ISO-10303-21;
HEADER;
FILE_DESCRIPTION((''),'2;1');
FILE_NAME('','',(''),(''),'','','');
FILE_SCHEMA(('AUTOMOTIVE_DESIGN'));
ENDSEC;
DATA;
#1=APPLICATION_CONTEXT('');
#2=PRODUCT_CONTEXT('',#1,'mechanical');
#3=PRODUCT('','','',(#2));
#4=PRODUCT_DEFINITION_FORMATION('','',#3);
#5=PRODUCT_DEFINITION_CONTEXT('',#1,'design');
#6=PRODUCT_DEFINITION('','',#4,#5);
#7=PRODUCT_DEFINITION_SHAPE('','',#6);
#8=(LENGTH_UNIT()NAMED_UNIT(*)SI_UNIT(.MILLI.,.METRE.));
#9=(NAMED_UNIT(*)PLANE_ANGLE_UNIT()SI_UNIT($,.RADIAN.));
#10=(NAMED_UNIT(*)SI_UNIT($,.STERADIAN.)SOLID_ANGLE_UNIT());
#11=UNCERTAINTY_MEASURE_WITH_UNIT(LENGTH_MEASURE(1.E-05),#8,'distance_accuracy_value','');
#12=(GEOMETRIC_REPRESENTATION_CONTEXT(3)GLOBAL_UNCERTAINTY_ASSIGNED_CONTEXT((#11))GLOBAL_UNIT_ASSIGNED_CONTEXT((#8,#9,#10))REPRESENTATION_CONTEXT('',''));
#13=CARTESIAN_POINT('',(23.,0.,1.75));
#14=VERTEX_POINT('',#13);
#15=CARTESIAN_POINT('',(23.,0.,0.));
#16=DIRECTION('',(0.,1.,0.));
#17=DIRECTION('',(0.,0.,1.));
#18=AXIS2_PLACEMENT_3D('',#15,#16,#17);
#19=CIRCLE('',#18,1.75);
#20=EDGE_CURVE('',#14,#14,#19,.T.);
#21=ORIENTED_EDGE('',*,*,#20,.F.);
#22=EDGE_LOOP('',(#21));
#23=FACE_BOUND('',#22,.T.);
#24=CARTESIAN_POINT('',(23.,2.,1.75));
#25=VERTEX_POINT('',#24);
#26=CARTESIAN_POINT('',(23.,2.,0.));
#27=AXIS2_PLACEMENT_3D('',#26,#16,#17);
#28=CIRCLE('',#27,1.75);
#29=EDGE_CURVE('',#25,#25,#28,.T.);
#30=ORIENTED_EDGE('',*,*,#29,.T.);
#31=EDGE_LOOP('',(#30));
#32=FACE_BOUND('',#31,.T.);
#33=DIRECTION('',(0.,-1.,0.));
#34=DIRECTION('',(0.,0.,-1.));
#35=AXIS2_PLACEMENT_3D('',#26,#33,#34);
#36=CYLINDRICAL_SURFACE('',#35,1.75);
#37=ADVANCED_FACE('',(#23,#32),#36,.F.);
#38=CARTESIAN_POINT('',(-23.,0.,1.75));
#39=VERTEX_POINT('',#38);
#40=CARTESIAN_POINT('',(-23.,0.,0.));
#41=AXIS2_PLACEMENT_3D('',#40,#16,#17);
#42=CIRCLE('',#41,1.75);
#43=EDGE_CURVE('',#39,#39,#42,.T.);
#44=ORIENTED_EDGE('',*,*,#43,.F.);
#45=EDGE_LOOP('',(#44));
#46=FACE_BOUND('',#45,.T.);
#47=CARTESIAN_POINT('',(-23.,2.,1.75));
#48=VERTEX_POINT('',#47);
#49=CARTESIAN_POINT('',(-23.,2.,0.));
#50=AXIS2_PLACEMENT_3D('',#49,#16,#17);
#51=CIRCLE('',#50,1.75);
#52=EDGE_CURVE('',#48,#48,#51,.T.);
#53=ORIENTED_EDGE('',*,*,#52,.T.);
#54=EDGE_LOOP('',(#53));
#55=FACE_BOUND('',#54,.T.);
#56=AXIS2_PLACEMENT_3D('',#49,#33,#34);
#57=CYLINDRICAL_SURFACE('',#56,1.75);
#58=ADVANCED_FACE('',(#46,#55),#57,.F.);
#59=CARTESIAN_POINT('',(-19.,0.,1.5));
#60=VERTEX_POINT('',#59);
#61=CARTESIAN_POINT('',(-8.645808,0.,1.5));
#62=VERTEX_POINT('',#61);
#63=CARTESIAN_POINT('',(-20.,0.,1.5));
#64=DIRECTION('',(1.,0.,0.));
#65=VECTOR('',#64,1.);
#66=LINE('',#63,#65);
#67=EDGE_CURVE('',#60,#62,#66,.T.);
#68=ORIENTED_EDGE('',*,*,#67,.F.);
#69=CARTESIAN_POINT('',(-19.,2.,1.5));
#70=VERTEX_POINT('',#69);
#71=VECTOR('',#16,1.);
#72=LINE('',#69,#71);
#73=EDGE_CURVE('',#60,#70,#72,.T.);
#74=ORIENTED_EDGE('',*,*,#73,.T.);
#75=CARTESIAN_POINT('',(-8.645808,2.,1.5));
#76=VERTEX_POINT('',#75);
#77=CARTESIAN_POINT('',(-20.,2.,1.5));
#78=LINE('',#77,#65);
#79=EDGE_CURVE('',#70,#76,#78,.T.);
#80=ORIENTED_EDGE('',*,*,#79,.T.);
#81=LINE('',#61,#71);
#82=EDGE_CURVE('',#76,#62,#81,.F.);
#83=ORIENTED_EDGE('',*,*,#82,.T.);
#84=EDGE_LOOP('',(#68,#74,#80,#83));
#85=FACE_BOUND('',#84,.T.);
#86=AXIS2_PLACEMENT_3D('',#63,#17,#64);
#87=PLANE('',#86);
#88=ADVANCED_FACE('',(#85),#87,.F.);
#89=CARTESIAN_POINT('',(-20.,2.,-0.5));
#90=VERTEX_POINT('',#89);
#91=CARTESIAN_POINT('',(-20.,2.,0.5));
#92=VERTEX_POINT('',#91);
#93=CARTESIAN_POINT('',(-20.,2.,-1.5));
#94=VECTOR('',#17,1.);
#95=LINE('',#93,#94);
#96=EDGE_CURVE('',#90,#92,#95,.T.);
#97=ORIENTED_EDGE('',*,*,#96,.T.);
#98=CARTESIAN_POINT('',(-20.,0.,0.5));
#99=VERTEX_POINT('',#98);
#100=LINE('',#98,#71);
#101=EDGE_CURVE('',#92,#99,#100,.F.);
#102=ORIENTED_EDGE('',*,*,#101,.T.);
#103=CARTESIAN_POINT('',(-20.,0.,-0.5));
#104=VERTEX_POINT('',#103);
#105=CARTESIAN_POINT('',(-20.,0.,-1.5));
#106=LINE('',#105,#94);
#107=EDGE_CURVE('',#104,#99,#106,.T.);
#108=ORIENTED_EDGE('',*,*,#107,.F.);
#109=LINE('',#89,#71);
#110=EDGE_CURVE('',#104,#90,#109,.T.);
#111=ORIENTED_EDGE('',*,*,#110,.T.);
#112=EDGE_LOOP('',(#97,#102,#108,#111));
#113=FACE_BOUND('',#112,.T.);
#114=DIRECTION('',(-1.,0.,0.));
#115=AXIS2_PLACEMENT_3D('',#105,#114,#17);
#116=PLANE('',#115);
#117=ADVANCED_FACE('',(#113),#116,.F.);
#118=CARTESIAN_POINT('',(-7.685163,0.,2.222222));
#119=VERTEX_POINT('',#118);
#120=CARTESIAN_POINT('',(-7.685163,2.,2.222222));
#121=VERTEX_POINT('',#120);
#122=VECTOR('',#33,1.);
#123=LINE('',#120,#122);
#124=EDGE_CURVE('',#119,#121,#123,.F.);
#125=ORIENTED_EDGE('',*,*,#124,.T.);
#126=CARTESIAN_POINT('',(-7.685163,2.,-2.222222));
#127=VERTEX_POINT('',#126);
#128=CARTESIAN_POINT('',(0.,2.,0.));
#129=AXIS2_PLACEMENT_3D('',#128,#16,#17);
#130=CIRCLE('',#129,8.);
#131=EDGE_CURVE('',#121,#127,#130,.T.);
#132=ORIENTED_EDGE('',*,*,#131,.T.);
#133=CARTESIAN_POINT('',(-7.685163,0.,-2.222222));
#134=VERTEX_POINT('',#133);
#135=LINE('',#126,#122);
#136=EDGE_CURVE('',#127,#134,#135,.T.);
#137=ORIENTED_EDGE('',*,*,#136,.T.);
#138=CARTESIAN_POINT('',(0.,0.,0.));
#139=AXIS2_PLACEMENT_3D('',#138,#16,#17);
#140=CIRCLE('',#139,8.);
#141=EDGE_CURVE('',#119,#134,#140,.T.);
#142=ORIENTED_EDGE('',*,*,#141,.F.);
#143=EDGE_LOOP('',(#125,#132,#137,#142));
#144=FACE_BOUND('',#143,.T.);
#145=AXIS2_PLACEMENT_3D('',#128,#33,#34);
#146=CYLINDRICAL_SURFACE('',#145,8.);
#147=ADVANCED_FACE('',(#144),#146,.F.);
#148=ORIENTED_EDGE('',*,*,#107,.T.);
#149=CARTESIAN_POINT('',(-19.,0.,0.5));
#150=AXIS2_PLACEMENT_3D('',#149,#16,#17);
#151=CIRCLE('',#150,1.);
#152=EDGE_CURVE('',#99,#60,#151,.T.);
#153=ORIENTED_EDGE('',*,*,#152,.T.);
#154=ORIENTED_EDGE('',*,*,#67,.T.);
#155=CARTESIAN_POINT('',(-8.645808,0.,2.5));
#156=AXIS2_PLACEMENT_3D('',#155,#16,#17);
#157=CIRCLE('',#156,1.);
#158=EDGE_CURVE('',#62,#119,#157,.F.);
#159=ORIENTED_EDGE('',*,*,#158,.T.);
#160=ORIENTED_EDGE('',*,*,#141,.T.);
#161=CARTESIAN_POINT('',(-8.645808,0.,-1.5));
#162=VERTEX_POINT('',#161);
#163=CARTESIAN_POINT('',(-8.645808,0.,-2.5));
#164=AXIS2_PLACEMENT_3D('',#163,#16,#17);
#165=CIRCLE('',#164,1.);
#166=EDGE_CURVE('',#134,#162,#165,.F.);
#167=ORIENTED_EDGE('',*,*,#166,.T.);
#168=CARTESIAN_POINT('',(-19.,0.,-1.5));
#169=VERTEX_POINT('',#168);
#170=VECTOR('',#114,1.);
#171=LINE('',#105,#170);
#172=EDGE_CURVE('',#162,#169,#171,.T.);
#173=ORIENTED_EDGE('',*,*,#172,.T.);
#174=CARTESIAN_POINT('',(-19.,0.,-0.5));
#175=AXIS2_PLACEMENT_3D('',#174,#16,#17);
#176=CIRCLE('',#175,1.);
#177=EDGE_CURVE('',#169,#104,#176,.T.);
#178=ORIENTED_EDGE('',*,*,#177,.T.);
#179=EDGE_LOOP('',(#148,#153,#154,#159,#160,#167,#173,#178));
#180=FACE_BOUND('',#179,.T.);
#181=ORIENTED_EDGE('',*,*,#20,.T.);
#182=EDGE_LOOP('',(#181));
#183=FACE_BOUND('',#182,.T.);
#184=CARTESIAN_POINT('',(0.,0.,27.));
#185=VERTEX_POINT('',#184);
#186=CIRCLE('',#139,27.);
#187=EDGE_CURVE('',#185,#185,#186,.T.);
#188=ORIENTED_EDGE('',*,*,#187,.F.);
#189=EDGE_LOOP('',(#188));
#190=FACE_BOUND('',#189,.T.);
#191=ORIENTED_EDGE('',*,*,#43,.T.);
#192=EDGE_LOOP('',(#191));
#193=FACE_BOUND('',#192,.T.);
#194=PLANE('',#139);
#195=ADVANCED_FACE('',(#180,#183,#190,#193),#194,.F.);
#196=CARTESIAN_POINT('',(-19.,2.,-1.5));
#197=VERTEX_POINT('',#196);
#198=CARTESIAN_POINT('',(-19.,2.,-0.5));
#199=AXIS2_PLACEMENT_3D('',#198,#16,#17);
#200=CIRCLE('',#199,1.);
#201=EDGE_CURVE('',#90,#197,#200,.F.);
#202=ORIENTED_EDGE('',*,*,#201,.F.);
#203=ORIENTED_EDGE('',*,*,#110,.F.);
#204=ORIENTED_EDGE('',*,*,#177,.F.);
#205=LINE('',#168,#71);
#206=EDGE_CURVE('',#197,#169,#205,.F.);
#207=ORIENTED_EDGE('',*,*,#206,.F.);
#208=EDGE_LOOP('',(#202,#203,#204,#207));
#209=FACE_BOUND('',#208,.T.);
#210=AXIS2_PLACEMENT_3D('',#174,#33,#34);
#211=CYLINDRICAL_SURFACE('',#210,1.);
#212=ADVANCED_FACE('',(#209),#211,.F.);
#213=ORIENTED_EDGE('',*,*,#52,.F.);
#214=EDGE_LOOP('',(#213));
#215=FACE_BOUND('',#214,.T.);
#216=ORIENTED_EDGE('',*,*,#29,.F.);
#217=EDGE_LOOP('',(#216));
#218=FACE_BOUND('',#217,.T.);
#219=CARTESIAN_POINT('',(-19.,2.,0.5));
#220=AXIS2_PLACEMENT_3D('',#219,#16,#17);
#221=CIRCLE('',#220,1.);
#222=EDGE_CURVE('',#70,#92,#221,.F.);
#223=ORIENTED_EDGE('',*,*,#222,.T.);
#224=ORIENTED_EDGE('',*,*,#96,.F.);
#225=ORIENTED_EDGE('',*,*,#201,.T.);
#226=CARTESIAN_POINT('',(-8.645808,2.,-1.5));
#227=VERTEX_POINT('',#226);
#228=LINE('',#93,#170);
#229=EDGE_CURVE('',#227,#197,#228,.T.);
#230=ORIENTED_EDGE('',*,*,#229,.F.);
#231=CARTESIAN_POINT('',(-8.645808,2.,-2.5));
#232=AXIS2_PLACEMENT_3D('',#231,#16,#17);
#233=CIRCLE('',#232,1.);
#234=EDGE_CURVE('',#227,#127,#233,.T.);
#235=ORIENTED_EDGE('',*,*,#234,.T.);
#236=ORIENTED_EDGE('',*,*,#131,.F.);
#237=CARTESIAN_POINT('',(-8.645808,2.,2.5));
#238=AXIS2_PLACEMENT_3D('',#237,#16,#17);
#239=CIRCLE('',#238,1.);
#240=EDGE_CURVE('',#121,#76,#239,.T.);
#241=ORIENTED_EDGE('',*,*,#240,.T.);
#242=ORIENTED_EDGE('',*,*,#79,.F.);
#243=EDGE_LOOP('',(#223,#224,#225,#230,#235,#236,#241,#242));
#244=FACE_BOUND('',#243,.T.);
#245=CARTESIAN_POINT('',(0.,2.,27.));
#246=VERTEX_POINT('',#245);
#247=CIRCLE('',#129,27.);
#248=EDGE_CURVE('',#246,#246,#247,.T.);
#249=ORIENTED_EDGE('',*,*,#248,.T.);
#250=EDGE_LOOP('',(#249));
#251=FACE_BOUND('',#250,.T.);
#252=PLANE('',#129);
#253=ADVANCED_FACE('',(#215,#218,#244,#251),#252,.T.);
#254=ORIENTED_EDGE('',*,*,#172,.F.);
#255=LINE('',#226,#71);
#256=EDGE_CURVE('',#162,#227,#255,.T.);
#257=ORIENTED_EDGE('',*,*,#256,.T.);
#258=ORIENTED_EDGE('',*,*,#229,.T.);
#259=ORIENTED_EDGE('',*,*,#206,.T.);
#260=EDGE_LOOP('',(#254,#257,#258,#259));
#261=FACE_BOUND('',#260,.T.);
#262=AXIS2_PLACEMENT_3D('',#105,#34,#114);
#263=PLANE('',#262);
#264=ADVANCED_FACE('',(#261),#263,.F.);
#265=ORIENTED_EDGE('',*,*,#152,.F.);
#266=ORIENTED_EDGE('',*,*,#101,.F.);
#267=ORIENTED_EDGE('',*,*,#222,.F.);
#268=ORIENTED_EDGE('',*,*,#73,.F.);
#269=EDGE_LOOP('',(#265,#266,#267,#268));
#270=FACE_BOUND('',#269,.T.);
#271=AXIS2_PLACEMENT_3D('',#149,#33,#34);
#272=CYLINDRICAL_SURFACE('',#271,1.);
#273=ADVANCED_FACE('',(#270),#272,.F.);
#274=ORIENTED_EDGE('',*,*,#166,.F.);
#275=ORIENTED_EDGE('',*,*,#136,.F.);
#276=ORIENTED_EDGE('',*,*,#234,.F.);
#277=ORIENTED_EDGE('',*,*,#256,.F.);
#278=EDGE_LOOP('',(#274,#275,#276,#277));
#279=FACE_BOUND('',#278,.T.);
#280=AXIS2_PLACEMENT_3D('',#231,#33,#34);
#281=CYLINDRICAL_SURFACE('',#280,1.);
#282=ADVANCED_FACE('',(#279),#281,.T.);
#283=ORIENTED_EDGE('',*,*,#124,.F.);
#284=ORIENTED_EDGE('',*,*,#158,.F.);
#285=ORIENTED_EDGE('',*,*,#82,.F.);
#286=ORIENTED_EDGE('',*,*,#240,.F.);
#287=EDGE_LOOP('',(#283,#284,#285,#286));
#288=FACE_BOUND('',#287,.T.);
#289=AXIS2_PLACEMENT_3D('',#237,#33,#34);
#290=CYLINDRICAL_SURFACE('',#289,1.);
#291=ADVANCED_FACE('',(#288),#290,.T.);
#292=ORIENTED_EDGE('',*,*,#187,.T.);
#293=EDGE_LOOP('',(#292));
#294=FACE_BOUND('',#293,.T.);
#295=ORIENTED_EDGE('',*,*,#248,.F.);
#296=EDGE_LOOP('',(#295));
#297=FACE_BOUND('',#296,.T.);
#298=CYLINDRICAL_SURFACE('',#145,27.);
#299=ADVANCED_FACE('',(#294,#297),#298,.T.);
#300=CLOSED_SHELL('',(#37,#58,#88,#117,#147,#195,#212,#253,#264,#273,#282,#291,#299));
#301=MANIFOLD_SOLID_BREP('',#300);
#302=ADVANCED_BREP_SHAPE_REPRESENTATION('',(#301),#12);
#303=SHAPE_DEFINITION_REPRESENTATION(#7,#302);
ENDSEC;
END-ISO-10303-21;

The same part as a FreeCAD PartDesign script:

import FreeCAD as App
import Part
import Sketcher
from FreeCAD import Vector
Q = App.Units.Quantity


def edges_at(feature, points):
    """Names of the edges that pass closest to the given points."""
    edges = feature.Shape.Edges
    near = lambda p: min(range(len(edges)), key=lambda i: edges[i].distToShape(Part.Vertex(*p))[0])
    return sorted({f"Edge{near(p) + 1}" for p in points})


def add_polygon(sketch, points):
    """Adds a closed chain of lines whose ends are joined by coincident constraints."""
    first, n = sketch.GeometryCount, len(points)
    for a, b in zip(points, points[1:] + points[:1]):
        sketch.addGeometry(Part.LineSegment(App.Vector(*a, 0), App.Vector(*b, 0)), False)
    for i in range(n):
        sketch.addConstraint(Sketcher.Constraint("Coincident", first + i, 2, first + (i + 1) % n, 1))

doc = App.newDocument("Part")
body = doc.addObject("PartDesign::Body", "Body")

sketch1 = doc.addObject("Sketcher::SketchObject", "Sketch")
body.addObject(sketch1)
sketch1.AttachmentSupport = (doc.XZ_Plane, [""])
sketch1.MapMode = "FlatFace"
sketch1.addGeometry(Part.Circle(Vector(0, 0, 0), Vector(0, 0, 1), 27), False)
sketch1.addGeometry(Part.Circle(Vector(-23, 0, 0), Vector(0, 0, 1), 1.8), False)
sketch1.addGeometry(Part.Circle(Vector(23, 0, 0), Vector(0, 0, 1), 1.8), False)
sketch1.addGeometry(Part.Circle(Vector(0, 0, 0), Vector(0, 0, 1), 8), False)
sketch1.addConstraint(Sketcher.Constraint("Coincident", 0, 3, -1, 1))
sketch1.addConstraint(Sketcher.Constraint("Coincident", 3, 3, -1, 1))
sketch1.addConstraint(Sketcher.Constraint("Equal", 1, 2))
sketch1.addConstraint(Sketcher.Constraint("Symmetric", 1, 3, 2, 3, -1, 1))
sketch1.addConstraint(Sketcher.Constraint("PointOnObject", 1, 3, -1))
sketch1.addConstraint(Sketcher.Constraint("Diameter", 0, Q("54 mm")))
sketch1.addConstraint(Sketcher.Constraint("Diameter", 3, Q("16 mm")))
sketch1.addConstraint(Sketcher.Constraint("Diameter", 1, Q("3.5 mm")))
sketch1.addConstraint(Sketcher.Constraint("DistanceX", 1, 3, -1, 1, Q("23 mm")))
pad1 = doc.addObject("PartDesign::Pad", "Pad")
body.addObject(pad1)
pad1.Profile = sketch1
pad1.Length = 2
pad1.Reversed = True

sketch2 = doc.addObject("Sketcher::SketchObject", "Sketch001")
body.addObject(sketch2)
sketch2.AttachmentSupport = (doc.XZ_Plane, [""])
sketch2.MapMode = "FlatFace"
sketch2.AttachmentOffset = App.Placement(Vector(0, 0, -2), App.Rotation())
add_polygon(sketch2, [(-20, -1.5), (-20, 1.5), (-5, 1.5), (-5, -1.5)])
sketch2.addConstraint(Sketcher.Constraint("Vertical", 0))
sketch2.addConstraint(Sketcher.Constraint("Horizontal", 1))
sketch2.addConstraint(Sketcher.Constraint("Vertical", 2))
sketch2.addConstraint(Sketcher.Constraint("Horizontal", 3))
sketch2.addConstraint(Sketcher.Constraint("DistanceX", 1, 1, 1, 2, Q("15 mm")))
sketch2.addConstraint(Sketcher.Constraint("DistanceY", 0, 1, 0, 2, Q("3 mm")))
sketch2.addConstraint(Sketcher.Constraint("DistanceX", 0, 2, -1, 1, Q("20 mm")))
sketch2.addConstraint(Sketcher.Constraint("DistanceY", -1, 1, 0, 2, Q("1.5 mm")))
pocket1 = doc.addObject("PartDesign::Pocket", "Pocket")
body.addObject(pocket1)
pocket1.Profile = sketch2
pocket1.Type = "ThroughAll"
pocket1.Reversed = True
doc.recompute()

fillet = doc.addObject("PartDesign::Fillet", "Fillet")
body.addObject(fillet)
fillet.Base = (pocket1, edges_at(pocket1, [
    (-7.858, 1, 1.5),
    (-7.858, 1, -1.5),
    (-20, 1, 1.5),
    (-20, 1, -1.5),
]))
fillet.Radius = 1

doc.recompute()
